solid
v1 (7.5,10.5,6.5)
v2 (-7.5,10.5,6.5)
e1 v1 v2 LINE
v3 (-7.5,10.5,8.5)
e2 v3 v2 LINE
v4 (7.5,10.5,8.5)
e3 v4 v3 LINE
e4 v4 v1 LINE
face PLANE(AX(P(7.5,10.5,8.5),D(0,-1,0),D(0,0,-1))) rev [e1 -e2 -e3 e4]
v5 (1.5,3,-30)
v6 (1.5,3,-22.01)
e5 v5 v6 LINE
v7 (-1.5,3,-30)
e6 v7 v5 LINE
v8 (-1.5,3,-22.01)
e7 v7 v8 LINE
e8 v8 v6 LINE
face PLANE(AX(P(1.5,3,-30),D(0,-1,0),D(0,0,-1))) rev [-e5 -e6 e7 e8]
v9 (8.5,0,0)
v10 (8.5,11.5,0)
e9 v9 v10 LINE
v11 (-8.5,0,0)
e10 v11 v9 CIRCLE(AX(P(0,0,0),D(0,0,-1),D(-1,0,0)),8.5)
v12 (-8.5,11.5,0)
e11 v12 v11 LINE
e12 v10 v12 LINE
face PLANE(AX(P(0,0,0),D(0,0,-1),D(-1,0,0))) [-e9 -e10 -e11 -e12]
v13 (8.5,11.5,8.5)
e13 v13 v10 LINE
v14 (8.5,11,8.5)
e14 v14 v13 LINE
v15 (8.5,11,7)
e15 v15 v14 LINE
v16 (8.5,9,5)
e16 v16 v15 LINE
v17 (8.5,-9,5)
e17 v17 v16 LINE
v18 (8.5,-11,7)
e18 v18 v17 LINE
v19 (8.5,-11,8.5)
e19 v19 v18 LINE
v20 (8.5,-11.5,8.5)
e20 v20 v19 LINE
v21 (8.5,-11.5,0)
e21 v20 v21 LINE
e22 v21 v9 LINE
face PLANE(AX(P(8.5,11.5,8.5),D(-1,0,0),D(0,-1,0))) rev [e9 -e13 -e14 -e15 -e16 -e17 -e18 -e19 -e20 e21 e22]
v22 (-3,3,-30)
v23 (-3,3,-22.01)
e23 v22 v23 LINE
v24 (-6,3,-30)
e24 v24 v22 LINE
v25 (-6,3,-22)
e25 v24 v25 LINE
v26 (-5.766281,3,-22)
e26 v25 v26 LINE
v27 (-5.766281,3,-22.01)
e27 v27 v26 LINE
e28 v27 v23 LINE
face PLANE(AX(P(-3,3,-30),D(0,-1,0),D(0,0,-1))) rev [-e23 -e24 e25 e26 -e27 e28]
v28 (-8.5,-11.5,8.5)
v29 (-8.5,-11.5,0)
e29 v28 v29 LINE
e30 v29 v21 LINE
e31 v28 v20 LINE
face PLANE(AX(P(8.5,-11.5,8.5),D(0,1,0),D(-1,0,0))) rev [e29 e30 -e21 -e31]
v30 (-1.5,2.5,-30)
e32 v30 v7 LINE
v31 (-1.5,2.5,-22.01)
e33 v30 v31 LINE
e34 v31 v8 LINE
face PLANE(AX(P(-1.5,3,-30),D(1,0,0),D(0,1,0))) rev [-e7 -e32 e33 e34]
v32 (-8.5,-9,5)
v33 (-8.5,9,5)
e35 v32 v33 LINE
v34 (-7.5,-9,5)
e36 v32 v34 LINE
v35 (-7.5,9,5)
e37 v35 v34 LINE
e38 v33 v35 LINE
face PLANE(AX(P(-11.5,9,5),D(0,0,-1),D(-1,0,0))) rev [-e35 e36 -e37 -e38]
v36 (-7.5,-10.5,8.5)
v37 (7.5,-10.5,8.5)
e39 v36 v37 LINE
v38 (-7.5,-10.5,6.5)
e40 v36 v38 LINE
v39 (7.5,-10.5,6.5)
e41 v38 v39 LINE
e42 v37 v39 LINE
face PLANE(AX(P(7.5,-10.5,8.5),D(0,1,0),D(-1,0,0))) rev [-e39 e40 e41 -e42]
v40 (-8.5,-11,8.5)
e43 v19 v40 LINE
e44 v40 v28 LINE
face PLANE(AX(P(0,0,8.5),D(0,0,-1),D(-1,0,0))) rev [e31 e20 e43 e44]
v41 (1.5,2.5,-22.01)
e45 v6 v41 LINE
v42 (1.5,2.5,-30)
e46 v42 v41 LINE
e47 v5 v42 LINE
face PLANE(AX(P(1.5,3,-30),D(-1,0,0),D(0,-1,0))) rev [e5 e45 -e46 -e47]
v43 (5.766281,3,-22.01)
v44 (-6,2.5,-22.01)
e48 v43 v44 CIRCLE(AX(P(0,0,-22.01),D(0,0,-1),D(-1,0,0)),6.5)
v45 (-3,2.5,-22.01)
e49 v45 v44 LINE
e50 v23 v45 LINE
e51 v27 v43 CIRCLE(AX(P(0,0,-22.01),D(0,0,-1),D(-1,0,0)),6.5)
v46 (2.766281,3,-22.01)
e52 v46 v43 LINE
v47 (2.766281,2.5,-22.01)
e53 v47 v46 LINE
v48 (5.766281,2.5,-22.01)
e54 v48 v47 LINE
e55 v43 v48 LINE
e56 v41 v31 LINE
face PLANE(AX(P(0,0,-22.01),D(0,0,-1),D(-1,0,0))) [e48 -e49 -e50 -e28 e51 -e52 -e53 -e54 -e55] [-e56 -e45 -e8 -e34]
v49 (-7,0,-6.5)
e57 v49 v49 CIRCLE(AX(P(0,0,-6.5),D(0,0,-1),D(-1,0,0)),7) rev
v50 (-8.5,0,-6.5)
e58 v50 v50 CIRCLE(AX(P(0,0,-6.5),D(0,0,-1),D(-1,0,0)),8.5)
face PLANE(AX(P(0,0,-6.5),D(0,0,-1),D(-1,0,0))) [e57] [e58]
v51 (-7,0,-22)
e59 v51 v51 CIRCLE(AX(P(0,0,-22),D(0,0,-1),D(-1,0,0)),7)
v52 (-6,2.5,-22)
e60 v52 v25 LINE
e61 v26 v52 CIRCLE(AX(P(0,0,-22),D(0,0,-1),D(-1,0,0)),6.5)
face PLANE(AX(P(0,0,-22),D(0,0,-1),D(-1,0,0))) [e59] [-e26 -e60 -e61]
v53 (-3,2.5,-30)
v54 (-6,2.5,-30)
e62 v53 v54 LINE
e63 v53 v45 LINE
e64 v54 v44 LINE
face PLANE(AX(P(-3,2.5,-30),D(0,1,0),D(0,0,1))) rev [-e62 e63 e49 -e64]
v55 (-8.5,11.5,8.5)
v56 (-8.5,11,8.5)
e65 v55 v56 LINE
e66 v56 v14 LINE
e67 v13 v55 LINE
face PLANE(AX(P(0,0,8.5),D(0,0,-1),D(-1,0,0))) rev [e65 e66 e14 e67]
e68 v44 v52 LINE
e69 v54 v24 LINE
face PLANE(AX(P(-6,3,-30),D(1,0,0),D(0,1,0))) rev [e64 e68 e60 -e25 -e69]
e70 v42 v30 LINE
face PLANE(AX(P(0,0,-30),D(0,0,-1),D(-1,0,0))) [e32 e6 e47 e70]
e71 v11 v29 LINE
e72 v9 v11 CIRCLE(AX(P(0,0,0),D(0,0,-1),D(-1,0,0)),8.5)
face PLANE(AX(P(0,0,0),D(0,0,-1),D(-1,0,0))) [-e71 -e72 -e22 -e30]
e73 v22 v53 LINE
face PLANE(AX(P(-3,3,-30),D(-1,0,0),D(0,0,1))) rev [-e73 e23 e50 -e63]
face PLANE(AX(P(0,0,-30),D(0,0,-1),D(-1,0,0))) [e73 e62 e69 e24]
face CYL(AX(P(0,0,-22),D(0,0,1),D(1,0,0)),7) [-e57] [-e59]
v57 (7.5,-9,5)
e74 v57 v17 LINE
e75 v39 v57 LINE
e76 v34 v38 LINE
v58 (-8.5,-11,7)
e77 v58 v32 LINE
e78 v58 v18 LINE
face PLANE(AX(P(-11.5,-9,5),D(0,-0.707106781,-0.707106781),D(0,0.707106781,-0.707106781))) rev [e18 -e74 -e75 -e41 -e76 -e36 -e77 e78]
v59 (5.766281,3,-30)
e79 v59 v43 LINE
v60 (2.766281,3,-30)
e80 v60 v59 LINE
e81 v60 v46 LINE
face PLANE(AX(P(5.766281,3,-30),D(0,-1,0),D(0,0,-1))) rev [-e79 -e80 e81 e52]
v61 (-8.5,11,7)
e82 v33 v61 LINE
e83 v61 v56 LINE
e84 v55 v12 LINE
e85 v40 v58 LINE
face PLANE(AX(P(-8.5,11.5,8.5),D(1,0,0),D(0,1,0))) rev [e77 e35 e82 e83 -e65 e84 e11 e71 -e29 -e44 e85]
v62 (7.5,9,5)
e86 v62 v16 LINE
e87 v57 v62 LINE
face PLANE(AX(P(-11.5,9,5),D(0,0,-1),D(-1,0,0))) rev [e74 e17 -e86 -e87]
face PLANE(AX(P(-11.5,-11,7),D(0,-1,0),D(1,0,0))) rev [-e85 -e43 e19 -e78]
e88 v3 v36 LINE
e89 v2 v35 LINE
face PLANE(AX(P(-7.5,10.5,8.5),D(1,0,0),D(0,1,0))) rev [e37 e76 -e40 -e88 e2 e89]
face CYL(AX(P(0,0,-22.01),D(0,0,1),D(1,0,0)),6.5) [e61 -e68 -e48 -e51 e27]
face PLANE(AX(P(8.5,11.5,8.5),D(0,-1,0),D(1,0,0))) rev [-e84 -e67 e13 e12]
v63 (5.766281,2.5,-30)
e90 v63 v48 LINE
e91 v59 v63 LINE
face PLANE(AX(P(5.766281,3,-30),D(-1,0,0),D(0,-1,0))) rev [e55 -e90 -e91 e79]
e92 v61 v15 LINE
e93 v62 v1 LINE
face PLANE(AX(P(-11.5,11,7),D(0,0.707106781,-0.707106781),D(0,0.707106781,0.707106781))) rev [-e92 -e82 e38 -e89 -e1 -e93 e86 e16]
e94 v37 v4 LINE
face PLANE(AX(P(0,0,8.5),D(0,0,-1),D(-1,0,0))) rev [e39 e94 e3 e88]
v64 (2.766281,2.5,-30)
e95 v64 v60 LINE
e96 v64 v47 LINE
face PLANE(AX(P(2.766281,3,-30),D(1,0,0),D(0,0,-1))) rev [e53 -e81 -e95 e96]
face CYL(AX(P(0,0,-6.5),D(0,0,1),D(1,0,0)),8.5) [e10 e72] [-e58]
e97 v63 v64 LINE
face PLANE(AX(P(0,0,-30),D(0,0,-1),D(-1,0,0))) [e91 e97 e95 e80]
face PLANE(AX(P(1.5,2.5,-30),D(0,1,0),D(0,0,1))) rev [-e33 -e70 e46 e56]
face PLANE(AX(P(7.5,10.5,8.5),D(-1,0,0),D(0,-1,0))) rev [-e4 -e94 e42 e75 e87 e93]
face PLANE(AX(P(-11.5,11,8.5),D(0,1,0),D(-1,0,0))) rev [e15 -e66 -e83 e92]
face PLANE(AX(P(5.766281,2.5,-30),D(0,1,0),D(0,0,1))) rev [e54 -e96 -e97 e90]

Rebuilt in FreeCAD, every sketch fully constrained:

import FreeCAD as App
import Part
import Sketcher
from FreeCAD import Vector

doc = App.newDocument("Part")
body = doc.addObject("PartDesign::Body", "Body")

# Sketch on XY plane
sketch1 = body.newObject("Sketcher::SketchObject", "Sketch")
sketch1.AttachmentSupport = (doc.getObject("XY_Plane"), [""])
sketch1.MapMode = "FlatFace"
sketch1.addGeometry(Part.LineSegment(Vector(-8, 12, 0), Vector(-8, -12, 0)), False)
sketch1.addGeometry(Part.LineSegment(Vector(-8, -12, 0), Vector(8, -12, 0)), False)
sketch1.addGeometry(Part.LineSegment(Vector(8, -12, 0), Vector(8, 12, 0)), False)
sketch1.addGeometry(Part.LineSegment(Vector(8, 12, 0), Vector(-8, 12, 0)), False)
sketch1.addConstraint(Sketcher.Constraint("Coincident", 0, 2, 1, 1))
sketch1.addConstraint(Sketcher.Constraint("Coincident", 1, 2, 2, 1))
sketch1.addConstraint(Sketcher.Constraint("Coincident", 2, 2, 3, 1))
sketch1.addConstraint(Sketcher.Constraint("Coincident", 3, 2, 0, 1))
sketch1.addConstraint(Sketcher.Constraint("Vertical", 0))
sketch1.addConstraint(Sketcher.Constraint("Horizontal", 1))
sketch1.addConstraint(Sketcher.Constraint("Vertical", 2))
sketch1.addConstraint(Sketcher.Constraint("Horizontal", 3))
sketch1.addConstraint(Sketcher.Constraint("Symmetric", 0, 2, 2, 2, -1, 1))
sketch1.addConstraint(Sketcher.Constraint("DistanceX", 1, 1, 1, 2, 17.0))
sketch1.addConstraint(Sketcher.Constraint("DistanceY", 0, 2, 0, 1, 23.0))
pad1 = body.newObject("PartDesign::Pad", "Pad")
pad1.Profile = sketch1
pad1.Length = 8.5

# Sketch on YZ plane
sketch2 = body.newObject("Sketcher::SketchObject", "Sketch001")
sketch2.AttachmentSupport = (doc.getObject("YZ_Plane"), [""])
sketch2.MapMode = "FlatFace"
sketch2.AttachmentOffset = App.Placement(Vector(0, 0, 8.5), App.Rotation())
sketch2.addGeometry(Part.LineSegment(Vector(11, 7, 0), Vector(11, 8.5, 0)), False)
sketch2.addGeometry(Part.LineSegment(Vector(11, 8.5, 0), Vector(-11, 8.5, 0)), False)
sketch2.addGeometry(Part.LineSegment(Vector(-11, 8.5, 0), Vector(-11, 7, 0)), False)
sketch2.addGeometry(Part.LineSegment(Vector(-11, 7, 0), Vector(-9, 5, 0)), False)
sketch2.addGeometry(Part.LineSegment(Vector(-9, 5, 0), Vector(9, 5, 0)), False)
sketch2.addGeometry(Part.LineSegment(Vector(9, 5, 0), Vector(11, 7, 0)), False)
sketch2.addConstraint(Sketcher.Constraint("Coincident", 0, 2, 1, 1))
sketch2.addConstraint(Sketcher.Constraint("Coincident", 1, 2, 2, 1))
sketch2.addConstraint(Sketcher.Constraint("Coincident", 2, 2, 3, 1))
sketch2.addConstraint(Sketcher.Constraint("Coincident", 3, 2, 4, 1))
sketch2.addConstraint(Sketcher.Constraint("Coincident", 4, 2, 5, 1))
sketch2.addConstraint(Sketcher.Constraint("Coincident", 5, 2, 0, 1))
sketch2.addConstraint(Sketcher.Constraint("Vertical", 0))
sketch2.addConstraint(Sketcher.Constraint("Horizontal", 1))
sketch2.addConstraint(Sketcher.Constraint("Vertical", 2))
sketch2.addConstraint(Sketcher.Constraint("Horizontal", 4))
sketch2.addConstraint(Sketcher.Constraint("Symmetric", 2, 2, 5, 2, -2))
sketch2.addConstraint(Sketcher.Constraint("Perpendicular", 3, 5))
sketch2.addConstraint(Sketcher.Constraint("Equal", 3, 5))
sketch2.addConstraint(Sketcher.Constraint("DistanceX", 1, 2, 1, 1, 22.0))
sketch2.addConstraint(Sketcher.Constraint("DistanceX", 4, 1, 4, 2, 18.0))
sketch2.addConstraint(Sketcher.Constraint("DistanceY", 0, 1, 0, 2, 1.5))
sketch2.addConstraint(Sketcher.Constraint("DistanceY", -1, 1, 2, 2, 7.0))
pocket1 = body.newObject("PartDesign::Pocket", "Pocket")
pocket1.Profile = sketch2
pocket1.Length = 20

# Sketch on XY plane
sketch3 = body.newObject("Sketcher::SketchObject", "Sketch002")
sketch3.AttachmentSupport = (doc.getObject("XY_Plane"), [""])
sketch3.MapMode = "FlatFace"
sketch3.AttachmentOffset = App.Placement(Vector(0, 0, 5), App.Rotation())
sketch3.addGeometry(Part.LineSegment(Vector(-8, 10, 0), Vector(-8, -10, 0)), False)
sketch3.addGeometry(Part.LineSegment(Vector(-8, -10, 0), Vector(8, -10, 0)), False)
sketch3.addGeometry(Part.LineSegment(Vector(8, -10, 0), Vector(8, 10, 0)), False)
sketch3.addGeometry(Part.LineSegment(Vector(8, 10, 0), Vector(-8, 10, 0)), False)
sketch3.addConstraint(Sketcher.Constraint("Coincident", 0, 2, 1, 1))
sketch3.addConstraint(Sketcher.Constraint("Coincident", 1, 2, 2, 1))
sketch3.addConstraint(Sketcher.Constraint("Coincident", 2, 2, 3, 1))
sketch3.addConstraint(Sketcher.Constraint("Coincident", 3, 2, 0, 1))
sketch3.addConstraint(Sketcher.Constraint("Vertical", 0))
sketch3.addConstraint(Sketcher.Constraint("Horizontal", 1))
sketch3.addConstraint(Sketcher.Constraint("Vertical", 2))
sketch3.addConstraint(Sketcher.Constraint("Horizontal", 3))
sketch3.addConstraint(Sketcher.Constraint("Symmetric", 0, 2, 2, 2, -1, 1))
sketch3.addConstraint(Sketcher.Constraint("DistanceX", 1, 1, 1, 2, 15.0))
sketch3.addConstraint(Sketcher.Constraint("DistanceY", 0, 2, 0, 1, 21.0))
pad2 = body.newObject("PartDesign::Pad", "Pad001")
pad2.Profile = sketch3
pad2.Length = 3.5

# Sketch on XY plane
sketch4 = body.newObject("Sketcher::SketchObject", "Sketch003")
sketch4.AttachmentSupport = (doc.getObject("XY_Plane"), [""])
sketch4.MapMode = "FlatFace"
sketch4.addGeometry(Part.Circle(Vector(0, 0, 0), Vector(0, 0, 1), 8), False)
sketch4.addConstraint(Sketcher.Constraint("Coincident", 0, 3, -1, 1))
sketch4.addConstraint(Sketcher.Constraint("Diameter", 0, 17.0))
pad3 = body.newObject("PartDesign::Pad", "Pad002")
pad3.Profile = sketch4
pad3.Length = 6.5
pad3.Reversed = True

# Sketch on XY plane
sketch5 = body.newObject("Sketcher::SketchObject", "Sketch004")
sketch5.AttachmentSupport = (doc.getObject("XY_Plane"), [""])
sketch5.MapMode = "FlatFace"
sketch5.addGeometry(Part.Circle(Vector(0, 0, 0), Vector(0, 0, 1), 7), False)
sketch5.addConstraint(Sketcher.Constraint("Coincident", 0, 3, -1, 1))
sketch5.addConstraint(Sketcher.Constraint("Diameter", 0, 14.0))
pad4 = body.newObject("PartDesign::Pad", "Pad003")
pad4.Profile = sketch5
pad4.Length = 22
pad4.Reversed = True

# Sketch on XY plane
sketch6 = body.newObject("Sketcher::SketchObject", "Sketch005")
sketch6.AttachmentSupport = (doc.getObject("XY_Plane"), [""])
sketch6.MapMode = "FlatFace"
sketch6.AttachmentOffset = App.Placement(Vector(0, 0, -22), App.Rotation())
sketch6.addGeometry(Part.LineSegment(Vector(5.8, 3, 0), Vector(5.8, 2.5, 0)), False)
sketch6.addGeometry(Part.LineSegment(Vector(5.8, 2.5, 0), Vector(2.8, 2.5, 0)), False)
sketch6.addGeometry(Part.LineSegment(Vector(2.8, 2.5, 0), Vector(2.8, 3, 0)), False)
sketch6.addGeometry(Part.LineSegment(Vector(2.8, 3, 0), Vector(5.8, 3, 0)), False)
sketch6.addGeometry(Part.LineSegment(Vector(1.5, 3, 0), Vector(1.5, 2.5, 0)), False)
sketch6.addGeometry(Part.LineSegment(Vector(1.5, 2.5, 0), Vector(-1.5, 2.5, 0)), False)
sketch6.addGeometry(Part.LineSegment(Vector(-1.5, 2.5, 0), Vector(-1.5, 3, 0)), False)
sketch6.addGeometry(Part.LineSegment(Vector(-1.5, 3, 0), Vector(1.5, 3, 0)), False)
sketch6.addGeometry(Part.LineSegment(Vector(-3, 3, 0), Vector(-3, 2.5, 0)), False)
sketch6.addGeometry(Part.LineSegment(Vector(-3, 2.5, 0), Vector(-6, 2.5, 0)), False)
sketch6.addGeometry(Part.LineSegment(Vector(-6, 2.5, 0), Vector(-6, 3, 0)), False)
sketch6.addGeometry(Part.LineSegment(Vector(-6, 3, 0), Vector(-3, 3, 0)), False)
sketch6.addConstraint(Sketcher.Constraint("Coincident", 0, 2, 1, 1))
sketch6.addConstraint(Sketcher.Constraint("Coincident", 1, 2, 2, 1))
sketch6.addConstraint(Sketcher.Constraint("Coincident", 2, 2, 3, 1))
sketch6.addConstraint(Sketcher.Constraint("Coincident", 3, 2, 0, 1))
sketch6.addConstraint(Sketcher.Constraint("Coincident", 4, 2, 5, 1))
sketch6.addConstraint(Sketcher.Constraint("Coincident", 5, 2, 6, 1))
sketch6.addConstraint(Sketcher.Constraint("Coincident", 6, 2, 7, 1))
sketch6.addConstraint(Sketcher.Constraint("Coincident", 7, 2, 4, 1))
sketch6.addConstraint(Sketcher.Constraint("Coincident", 8, 2, 9, 1))
sketch6.addConstraint(Sketcher.Constraint("Coincident", 9, 2, 10, 1))
sketch6.addConstraint(Sketcher.Constraint("Coincident", 10, 2, 11, 1))
sketch6.addConstraint(Sketcher.Constraint("Coincident", 11, 2, 8, 1))
sketch6.addConstraint(Sketcher.Constraint("Vertical", 0))
sketch6.addConstraint(Sketcher.Constraint("Horizontal", 1))
sketch6.addConstraint(Sketcher.Constraint("Vertical", 2))
sketch6.addConstraint(Sketcher.Constraint("Horizontal", 3))
sketch6.addConstraint(Sketcher.Constraint("Vertical", 4))
sketch6.addConstraint(Sketcher.Constraint("Horizontal", 5))
sketch6.addConstraint(Sketcher.Constraint("Vertical", 6))
sketch6.addConstraint(Sketcher.Constraint("Horizontal", 7))
sketch6.addConstraint(Sketcher.Constraint("Vertical", 8))
sketch6.addConstraint(Sketcher.Constraint("Horizontal", 9))
sketch6.addConstraint(Sketcher.Constraint("Vertical", 10))
sketch6.addConstraint(Sketcher.Constraint("Horizontal", 11))
sketch6.addConstraint(Sketcher.Constraint("Horizontal", 1, 2, 4, 2))
sketch6.addConstraint(Sketcher.Constraint("Horizontal", 3, 2, 6, 2))
sketch6.addConstraint(Sketcher.Constraint("Horizontal", 5, 2, 8, 2))
sketch6.addConstraint(Sketcher.Constraint("Horizontal", 7, 2, 10, 2))
sketch6.addConstraint(Sketcher.Constraint("Equal", 3, 5))
sketch6.addConstraint(Sketcher.Constraint("Equal", 7, 9))
sketch6.addConstraint(Sketcher.Constraint("DistanceX", 1, 2, 1, 1, 3.0))
sketch6.addConstraint(Sketcher.Constraint("DistanceY", 0, 2, 0, 1, 0.5))
sketch6.addConstraint(Sketcher.Constraint("DistanceY", -1, 1, 2, 2, 3.0))
sketch6.addConstraint(Sketcher.Constraint("DistanceX", 8, 2, -1, 1, 3.0))
sketch6.addConstraint(Sketcher.Constraint("DistanceX", -1, 1, 4, 2, 1.5))
sketch6.addConstraint(Sketcher.Constraint("DistanceX", -1, 1, 0, 2, 5.766281))
pad5 = body.newObject("PartDesign::Pad", "Pad004")
pad5.Profile = sketch6
pad5.Length = 8
pad5.Reversed = True

# Sketch on XY plane
sketch7 = body.newObject("Sketcher::SketchObject", "Sketch006")
sketch7.AttachmentSupport = (doc.getObject("XY_Plane"), [""])
sketch7.MapMode = "FlatFace"
sketch7.AttachmentOffset = App.Placement(Vector(0, 0, -22), App.Rotation())
sketch7.addGeometry(Part.Circle(Vector(0, 0, 0), Vector(0, 0, 1), 6), False)
sketch7.addConstraint(Sketcher.Constraint("Coincident", 0, 3, -1, 1))
sketch7.addConstraint(Sketcher.Constraint("Diameter", 0, 13.0))
pad6 = body.newObject("PartDesign::Pad", "Pad005")
pad6.Profile = sketch7
pad6.Length = 0.01
pad6.Reversed = True

doc.recompute()
